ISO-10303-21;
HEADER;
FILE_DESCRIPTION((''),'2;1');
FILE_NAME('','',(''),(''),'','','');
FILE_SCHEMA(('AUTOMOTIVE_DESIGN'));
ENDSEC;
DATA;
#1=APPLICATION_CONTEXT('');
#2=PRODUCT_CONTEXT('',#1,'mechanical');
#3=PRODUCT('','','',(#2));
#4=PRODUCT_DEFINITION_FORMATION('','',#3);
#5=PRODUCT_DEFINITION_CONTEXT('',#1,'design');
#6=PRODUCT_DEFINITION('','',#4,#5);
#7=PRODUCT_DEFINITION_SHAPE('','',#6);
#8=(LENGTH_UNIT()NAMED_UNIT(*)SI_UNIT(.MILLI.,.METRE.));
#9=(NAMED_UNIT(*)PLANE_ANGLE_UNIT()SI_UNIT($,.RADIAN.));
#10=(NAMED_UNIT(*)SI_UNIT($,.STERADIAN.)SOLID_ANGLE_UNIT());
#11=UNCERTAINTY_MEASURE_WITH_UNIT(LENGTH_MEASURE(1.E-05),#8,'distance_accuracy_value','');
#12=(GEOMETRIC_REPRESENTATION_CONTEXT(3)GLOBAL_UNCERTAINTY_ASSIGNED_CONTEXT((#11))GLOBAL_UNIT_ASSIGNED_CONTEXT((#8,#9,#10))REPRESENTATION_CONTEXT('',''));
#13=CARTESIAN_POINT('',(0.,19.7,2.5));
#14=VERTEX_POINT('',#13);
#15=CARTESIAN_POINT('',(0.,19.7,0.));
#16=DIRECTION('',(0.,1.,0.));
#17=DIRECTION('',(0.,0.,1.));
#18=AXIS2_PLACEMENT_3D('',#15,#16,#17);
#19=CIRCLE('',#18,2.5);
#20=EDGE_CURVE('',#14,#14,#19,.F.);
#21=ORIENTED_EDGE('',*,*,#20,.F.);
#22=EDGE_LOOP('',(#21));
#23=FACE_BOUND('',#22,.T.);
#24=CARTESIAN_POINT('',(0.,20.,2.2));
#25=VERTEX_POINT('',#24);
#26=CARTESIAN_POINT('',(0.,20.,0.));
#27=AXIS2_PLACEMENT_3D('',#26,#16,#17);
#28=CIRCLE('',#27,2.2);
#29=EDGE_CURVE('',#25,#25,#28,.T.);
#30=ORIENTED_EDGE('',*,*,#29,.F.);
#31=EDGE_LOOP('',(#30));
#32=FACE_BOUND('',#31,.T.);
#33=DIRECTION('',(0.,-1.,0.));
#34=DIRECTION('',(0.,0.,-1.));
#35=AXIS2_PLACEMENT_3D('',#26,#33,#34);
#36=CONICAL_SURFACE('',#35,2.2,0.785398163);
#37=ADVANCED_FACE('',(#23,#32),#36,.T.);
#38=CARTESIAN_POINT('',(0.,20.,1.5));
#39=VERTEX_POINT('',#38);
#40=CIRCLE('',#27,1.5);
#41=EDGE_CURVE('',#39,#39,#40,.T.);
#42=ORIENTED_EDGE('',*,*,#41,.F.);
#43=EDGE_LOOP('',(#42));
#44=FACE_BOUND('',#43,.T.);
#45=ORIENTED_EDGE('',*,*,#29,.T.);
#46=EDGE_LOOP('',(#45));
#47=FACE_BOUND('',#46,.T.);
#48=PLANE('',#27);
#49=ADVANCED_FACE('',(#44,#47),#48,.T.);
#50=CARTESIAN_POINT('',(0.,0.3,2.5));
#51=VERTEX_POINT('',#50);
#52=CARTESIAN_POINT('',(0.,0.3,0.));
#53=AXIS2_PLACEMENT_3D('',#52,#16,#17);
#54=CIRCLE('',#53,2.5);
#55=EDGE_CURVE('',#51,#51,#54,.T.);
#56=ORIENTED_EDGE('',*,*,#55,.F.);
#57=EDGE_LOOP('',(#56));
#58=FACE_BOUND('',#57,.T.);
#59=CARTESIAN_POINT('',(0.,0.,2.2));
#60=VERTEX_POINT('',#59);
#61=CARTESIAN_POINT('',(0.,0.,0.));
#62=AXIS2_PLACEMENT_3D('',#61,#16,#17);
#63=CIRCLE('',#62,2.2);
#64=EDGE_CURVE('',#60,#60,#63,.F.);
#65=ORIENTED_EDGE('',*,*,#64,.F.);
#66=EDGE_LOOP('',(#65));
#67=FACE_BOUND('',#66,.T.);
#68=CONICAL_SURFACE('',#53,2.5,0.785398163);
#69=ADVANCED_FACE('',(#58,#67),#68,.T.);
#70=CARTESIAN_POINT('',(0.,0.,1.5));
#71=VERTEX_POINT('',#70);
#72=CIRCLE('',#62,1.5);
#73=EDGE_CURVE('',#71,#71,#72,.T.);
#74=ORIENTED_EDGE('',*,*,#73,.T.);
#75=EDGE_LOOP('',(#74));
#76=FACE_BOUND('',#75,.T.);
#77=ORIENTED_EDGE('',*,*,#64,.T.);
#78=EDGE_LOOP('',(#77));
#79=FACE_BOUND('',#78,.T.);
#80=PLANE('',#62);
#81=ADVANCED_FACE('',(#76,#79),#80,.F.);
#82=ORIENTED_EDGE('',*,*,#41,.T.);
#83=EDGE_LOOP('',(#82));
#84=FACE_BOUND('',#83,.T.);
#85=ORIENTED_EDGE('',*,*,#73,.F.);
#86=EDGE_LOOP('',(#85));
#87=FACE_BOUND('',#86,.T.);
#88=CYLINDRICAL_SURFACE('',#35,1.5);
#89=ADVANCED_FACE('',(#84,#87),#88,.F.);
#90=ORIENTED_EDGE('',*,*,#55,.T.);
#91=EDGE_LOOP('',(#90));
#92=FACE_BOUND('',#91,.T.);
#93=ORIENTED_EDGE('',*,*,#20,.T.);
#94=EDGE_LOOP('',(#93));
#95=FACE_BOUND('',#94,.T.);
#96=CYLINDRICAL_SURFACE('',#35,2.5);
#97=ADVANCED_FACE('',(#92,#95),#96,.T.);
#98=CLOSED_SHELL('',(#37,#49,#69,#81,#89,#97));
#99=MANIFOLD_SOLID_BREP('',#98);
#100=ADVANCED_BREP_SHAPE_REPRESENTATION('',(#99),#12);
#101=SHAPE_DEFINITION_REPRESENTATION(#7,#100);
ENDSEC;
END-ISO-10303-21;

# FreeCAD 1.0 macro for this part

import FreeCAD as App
import Part
import Sketcher

V = App.Vector
Q = App.Units.Quantity


def edges_at(feature, points):
    """Names of the edges that pass closest to the given points."""
    edges = feature.Shape.Edges
    near = lambda p: min(range(len(edges)), key=lambda i: edges[i].distToShape(Part.Vertex(*p))[0])
    return sorted({f"Edge{near(p) + 1}" for p in points})

doc = App.newDocument("Part")
body = doc.addObject("PartDesign::Body", "Body")

# Sketch on XZ plane
sketch1 = body.newObject("Sketcher::SketchObject", "Sketch")
sketch1.AttachmentSupport = (doc.getObject("XZ_Plane"), [""])
sketch1.MapMode = "FlatFace"
sketch1.addGeometry(Part.Circle(V(0, 0, 0), V(0, 0, 1), 2.5), False)
sketch1.addGeometry(Part.Circle(V(0, 0, 0), V(0, 0, 1), 1.5), False)
sketch1.addConstraint(Sketcher.Constraint("Coincident", 0, 3, -1, 1))
sketch1.addConstraint(Sketcher.Constraint("Coincident", 1, 3, -1, 1))
sketch1.addConstraint(Sketcher.Constraint("Diameter", 0, Q("5 mm")))
sketch1.addConstraint(Sketcher.Constraint("Diameter", 1, Q("3 mm")))
pad1 = body.newObject("PartDesign::Pad", "Pad")
pad1.Profile = sketch1
pad1.Length = 20
pad1.Reversed = True
doc.recompute()

chamfer = body.newObject("PartDesign::Chamfer", "Chamfer")
chamfer.Base = (pad1, edges_at(pad1, [(0, 0, -2.5), (0, 20, -2.5)]))
chamfer.Size = 0.3

doc.recompute()
